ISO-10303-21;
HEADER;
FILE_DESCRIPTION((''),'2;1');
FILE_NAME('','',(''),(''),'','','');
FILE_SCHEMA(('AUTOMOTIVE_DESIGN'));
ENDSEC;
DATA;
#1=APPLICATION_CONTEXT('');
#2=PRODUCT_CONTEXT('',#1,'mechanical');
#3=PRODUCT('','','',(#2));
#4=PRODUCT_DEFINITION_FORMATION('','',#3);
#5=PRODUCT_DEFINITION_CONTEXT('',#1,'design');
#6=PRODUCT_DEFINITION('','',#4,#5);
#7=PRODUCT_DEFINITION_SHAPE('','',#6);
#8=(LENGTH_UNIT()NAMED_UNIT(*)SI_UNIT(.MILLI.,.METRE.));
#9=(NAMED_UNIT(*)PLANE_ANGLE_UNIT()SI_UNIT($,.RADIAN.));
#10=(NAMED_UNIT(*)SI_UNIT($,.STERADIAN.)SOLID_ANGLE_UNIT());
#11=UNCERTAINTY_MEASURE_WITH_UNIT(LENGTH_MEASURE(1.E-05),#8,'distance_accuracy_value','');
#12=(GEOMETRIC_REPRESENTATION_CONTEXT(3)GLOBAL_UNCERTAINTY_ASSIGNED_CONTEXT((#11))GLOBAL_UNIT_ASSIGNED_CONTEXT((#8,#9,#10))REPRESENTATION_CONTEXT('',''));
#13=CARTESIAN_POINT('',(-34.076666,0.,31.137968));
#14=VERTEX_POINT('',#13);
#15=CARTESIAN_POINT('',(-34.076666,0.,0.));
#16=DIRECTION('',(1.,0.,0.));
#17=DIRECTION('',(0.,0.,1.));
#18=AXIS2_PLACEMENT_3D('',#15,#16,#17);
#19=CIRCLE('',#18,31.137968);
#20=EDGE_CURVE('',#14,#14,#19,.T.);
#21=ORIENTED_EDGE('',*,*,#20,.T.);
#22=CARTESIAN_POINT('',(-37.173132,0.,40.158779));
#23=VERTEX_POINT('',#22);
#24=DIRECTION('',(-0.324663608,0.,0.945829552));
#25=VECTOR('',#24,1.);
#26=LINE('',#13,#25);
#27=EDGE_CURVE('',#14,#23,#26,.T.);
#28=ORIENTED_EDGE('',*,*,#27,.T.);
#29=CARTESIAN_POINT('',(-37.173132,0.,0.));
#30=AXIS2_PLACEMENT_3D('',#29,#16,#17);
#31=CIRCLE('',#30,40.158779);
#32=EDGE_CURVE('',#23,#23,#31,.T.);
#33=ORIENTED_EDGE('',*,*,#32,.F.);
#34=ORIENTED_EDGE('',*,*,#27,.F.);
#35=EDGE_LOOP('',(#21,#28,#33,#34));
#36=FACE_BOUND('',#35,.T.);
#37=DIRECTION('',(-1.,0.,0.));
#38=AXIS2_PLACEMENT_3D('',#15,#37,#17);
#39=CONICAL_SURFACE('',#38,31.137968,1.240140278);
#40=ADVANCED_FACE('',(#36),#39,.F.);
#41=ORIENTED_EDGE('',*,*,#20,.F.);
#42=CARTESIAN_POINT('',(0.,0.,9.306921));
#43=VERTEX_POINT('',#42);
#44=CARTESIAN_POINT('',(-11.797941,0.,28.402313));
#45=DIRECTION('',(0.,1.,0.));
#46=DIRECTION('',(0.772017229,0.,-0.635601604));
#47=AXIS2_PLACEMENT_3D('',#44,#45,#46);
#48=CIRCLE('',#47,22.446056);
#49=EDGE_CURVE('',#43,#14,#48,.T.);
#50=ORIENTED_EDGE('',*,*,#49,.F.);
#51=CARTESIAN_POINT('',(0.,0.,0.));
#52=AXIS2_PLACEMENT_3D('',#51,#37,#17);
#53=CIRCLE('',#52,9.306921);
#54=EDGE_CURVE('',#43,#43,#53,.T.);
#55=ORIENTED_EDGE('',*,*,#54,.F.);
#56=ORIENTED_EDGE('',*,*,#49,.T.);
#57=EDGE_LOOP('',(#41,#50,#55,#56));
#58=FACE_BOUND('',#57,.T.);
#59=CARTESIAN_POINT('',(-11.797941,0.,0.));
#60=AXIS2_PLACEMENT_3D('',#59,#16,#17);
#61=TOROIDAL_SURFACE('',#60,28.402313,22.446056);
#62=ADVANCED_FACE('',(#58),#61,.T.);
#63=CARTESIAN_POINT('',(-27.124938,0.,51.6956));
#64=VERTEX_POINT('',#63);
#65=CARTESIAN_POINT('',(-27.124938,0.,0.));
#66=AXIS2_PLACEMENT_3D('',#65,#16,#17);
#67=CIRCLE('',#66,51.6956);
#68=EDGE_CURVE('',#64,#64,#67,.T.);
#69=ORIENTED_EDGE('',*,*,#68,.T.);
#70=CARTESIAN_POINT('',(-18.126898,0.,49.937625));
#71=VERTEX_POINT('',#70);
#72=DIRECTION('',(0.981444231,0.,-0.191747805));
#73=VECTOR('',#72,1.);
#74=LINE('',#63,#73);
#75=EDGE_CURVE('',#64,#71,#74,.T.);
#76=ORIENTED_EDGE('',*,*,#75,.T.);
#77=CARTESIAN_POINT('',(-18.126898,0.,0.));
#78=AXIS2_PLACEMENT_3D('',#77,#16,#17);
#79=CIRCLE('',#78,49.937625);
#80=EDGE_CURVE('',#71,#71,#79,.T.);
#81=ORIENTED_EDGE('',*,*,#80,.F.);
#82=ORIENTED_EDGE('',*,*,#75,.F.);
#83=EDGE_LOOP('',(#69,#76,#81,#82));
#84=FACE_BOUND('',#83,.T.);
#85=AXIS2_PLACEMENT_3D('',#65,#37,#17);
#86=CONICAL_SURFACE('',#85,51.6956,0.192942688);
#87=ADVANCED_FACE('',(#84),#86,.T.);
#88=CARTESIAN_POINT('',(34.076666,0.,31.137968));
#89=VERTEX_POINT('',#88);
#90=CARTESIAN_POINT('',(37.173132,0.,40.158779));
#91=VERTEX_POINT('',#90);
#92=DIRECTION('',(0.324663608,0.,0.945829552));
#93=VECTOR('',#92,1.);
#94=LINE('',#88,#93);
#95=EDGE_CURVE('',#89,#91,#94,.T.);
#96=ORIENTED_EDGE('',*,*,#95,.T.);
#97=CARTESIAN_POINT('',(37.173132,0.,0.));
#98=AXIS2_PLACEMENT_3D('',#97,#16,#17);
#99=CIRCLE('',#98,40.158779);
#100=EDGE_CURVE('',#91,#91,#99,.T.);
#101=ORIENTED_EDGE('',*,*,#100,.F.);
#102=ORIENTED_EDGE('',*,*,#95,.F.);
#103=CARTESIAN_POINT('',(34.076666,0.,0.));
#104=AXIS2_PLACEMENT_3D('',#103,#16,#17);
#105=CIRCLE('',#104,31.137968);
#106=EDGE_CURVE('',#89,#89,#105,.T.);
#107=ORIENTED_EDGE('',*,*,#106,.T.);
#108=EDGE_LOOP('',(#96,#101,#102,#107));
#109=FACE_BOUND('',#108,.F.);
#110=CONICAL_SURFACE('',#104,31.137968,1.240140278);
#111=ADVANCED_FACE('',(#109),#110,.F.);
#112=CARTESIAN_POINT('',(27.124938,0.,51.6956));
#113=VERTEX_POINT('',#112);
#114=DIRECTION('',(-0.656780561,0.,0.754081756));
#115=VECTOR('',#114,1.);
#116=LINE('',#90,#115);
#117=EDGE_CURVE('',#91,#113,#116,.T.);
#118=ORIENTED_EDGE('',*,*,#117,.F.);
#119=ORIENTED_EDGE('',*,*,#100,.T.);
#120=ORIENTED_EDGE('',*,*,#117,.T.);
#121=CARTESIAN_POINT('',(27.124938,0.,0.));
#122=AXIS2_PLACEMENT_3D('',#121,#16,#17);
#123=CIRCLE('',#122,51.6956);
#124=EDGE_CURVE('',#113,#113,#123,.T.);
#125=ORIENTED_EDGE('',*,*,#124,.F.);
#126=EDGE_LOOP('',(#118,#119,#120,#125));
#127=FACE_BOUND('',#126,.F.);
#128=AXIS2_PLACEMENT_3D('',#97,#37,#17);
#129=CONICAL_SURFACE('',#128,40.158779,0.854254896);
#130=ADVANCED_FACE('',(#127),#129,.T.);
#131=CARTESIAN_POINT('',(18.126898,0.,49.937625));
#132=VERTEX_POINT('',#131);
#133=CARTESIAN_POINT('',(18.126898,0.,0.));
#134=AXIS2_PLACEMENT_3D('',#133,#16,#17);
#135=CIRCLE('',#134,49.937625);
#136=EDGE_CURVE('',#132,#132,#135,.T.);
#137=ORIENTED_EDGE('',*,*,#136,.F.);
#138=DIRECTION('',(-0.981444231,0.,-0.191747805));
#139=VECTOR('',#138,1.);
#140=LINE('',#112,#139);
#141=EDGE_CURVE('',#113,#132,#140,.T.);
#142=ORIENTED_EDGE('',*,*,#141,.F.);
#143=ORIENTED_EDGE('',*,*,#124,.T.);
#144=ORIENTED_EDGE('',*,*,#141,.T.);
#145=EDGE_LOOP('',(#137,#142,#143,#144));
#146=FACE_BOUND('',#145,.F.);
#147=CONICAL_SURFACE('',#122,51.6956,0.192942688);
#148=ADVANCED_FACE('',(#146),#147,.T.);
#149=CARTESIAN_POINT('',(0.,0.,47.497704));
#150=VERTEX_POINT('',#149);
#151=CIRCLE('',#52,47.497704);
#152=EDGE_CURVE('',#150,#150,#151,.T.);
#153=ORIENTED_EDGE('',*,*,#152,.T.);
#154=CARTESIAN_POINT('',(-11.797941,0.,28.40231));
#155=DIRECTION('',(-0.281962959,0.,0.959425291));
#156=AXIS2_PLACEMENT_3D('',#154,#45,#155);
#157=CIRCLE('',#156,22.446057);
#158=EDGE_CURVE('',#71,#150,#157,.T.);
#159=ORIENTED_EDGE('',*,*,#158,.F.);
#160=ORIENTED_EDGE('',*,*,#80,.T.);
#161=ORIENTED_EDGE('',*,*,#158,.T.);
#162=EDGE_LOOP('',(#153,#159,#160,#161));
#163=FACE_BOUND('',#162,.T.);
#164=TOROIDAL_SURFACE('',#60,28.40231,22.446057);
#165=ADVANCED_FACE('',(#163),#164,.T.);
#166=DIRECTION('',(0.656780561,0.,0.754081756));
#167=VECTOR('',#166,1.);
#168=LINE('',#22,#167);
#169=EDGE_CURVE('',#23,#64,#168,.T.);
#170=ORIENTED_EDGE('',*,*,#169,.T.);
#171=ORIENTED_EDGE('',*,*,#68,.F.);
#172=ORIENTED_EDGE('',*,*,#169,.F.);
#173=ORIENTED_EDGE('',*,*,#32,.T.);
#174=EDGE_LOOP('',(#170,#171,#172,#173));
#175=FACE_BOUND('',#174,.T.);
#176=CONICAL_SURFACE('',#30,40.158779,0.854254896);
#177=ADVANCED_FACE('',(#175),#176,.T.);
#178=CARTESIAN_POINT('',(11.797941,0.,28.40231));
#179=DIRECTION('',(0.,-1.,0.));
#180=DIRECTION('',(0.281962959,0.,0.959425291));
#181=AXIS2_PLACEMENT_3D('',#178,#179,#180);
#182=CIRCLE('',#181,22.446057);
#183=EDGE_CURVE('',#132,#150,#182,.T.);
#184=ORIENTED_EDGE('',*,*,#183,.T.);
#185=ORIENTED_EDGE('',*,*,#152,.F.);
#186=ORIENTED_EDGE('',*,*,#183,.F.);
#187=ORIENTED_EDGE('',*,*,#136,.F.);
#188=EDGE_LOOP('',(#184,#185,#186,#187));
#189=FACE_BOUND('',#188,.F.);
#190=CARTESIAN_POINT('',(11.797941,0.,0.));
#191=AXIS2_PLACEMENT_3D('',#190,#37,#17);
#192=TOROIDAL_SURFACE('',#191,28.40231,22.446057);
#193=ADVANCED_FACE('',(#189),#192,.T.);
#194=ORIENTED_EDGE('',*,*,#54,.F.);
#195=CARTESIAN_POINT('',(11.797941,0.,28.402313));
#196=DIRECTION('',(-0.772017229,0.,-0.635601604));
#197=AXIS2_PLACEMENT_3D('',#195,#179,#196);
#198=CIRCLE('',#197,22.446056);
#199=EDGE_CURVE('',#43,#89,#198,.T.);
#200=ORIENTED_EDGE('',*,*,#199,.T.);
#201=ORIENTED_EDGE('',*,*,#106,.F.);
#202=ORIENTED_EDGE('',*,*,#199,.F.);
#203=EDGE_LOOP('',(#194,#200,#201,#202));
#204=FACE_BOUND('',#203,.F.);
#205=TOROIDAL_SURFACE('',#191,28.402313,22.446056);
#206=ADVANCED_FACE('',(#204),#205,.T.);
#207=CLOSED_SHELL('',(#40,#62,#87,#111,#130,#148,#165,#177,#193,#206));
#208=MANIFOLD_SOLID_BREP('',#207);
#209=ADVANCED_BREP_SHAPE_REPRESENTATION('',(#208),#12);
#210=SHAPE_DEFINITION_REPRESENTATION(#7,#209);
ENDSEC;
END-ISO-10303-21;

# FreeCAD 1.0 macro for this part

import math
import FreeCAD as App
import Part
import Sketcher
Q = App.Units.Quantity

doc = App.newDocument("Part")
body = doc.addObject("PartDesign::Body", "Body")

# Sketch on XZ plane
sketch1 = doc.addObject("Sketcher::SketchObject", "Sketch")
body.addObject(sketch1)
sketch1.AttachmentSupport = (doc.XZ_Plane, [""])
sketch1.MapMode = "FlatFace"
sketch1.addGeometry([
    Part.ArcOfCircle(Part.Circle(App.Vector(11.797941, 28.40231, 0), App.Vector(0, 0, 1), 22.446057), math.radians(73.622605), math.radians(146.147122)),  # 0
    Part.ArcOfCircle(Part.Circle(App.Vector(-2.175499, 27.717462, 0), App.Vector(0, 0, 1), 13.990211), math.radians(109.488379), math.radians(256.123366)),  # 1
    Part.ArcOfCircle(Part.Circle(App.Vector(11.797941, 28.402313, 0), App.Vector(0, 0, 1), 22.446056), math.radians(-140.535381), math.radians(7.000435)),  # 2
    Part.LineSegment(App.Vector(34.076666, 31.137968, 0), App.Vector(37.173132, 40.158779, 0)),  # 3
    Part.LineSegment(App.Vector(37.173132, 40.158779, 0), App.Vector(27.124938, 51.6956, 0)),  # 4
    Part.LineSegment(App.Vector(27.124938, 51.6956, 0), App.Vector(18.126898, 49.937625, 0)),  # 5
], False)
sketch1.addConstraint([
    Sketcher.Constraint("Coincident", 0, 2, 1, 1),
    Sketcher.Constraint("Coincident", 1, 2, 2, 1),
    Sketcher.Constraint("Coincident", 2, 2, 3, 1),
    Sketcher.Constraint("Coincident", 3, 2, 4, 1),
    Sketcher.Constraint("Coincident", 4, 2, 5, 1),
    Sketcher.Constraint("Coincident", 5, 2, 0, 1),
    Sketcher.Constraint("Coincident", 2, 3, 0, 3),
    Sketcher.Constraint("Equal", 0, 2),
    Sketcher.Constraint("Radius", 1, Q("13.990211 mm")),
    Sketcher.Constraint("Radius", 0, Q("22.446057 mm")),
    Sketcher.Constraint("DistanceX", 1, 3, -1, 1, Q("2.175499 mm")),
    Sketcher.Constraint("DistanceX", 1, 2, -1, 1, Q("5.530801 mm")),
    Sketcher.Constraint("DistanceY", -1, 1, 4, 2, Q("51.6956 mm")),
    Sketcher.Constraint("DistanceX", -1, 1, 5, 2, Q("18.126898 mm")),
    Sketcher.Constraint("DistanceY", 1, 3, 0, 2, Q("13.1887 mm")),
    Sketcher.Constraint("Distance", 3, Q("9.537459 mm")),
    Sketcher.Constraint("DistanceY", -1, 1, 0, 3, Q("28.40231 mm")),
    Sketcher.Constraint("DistanceY", -1, 1, 2, 2, Q("31.137968 mm")),
    Sketcher.Constraint("DistanceY", -1, 1, 3, 2, Q("40.158779 mm")),
    Sketcher.Constraint("DistanceX", -1, 1, 4, 2, Q("27.124938 mm")),
])
revolution = doc.addObject("PartDesign::Revolution", "Revolution")
body.addObject(revolution)
revolution.Profile = sketch1
revolution.ReferenceAxis = (sketch1, ["H_Axis"])
revolution.Angle = 360
body2 = doc.addObject("PartDesign::Body", "Body001")
doc.recompute()

body2.BaseFeature = body
doc.recompute()

mirroring = doc.addObject("Part::Mirroring", "Mirroring")
mirroring.Source = body
mirroring.Base = App.Vector(0, 0, 0)
mirroring.Normal = App.Vector(1, 0, 0)
body3 = doc.addObject("PartDesign::Body", "Body002")
body3.BaseFeature = mirroring
boolean = doc.addObject("PartDesign::Boolean", "Boolean")
body2.addObject(boolean)
boolean.Type = "Fuse"
boolean.addObjects([body3])
doc.recompute()
mirroring.Visibility = False

doc.recompute()
